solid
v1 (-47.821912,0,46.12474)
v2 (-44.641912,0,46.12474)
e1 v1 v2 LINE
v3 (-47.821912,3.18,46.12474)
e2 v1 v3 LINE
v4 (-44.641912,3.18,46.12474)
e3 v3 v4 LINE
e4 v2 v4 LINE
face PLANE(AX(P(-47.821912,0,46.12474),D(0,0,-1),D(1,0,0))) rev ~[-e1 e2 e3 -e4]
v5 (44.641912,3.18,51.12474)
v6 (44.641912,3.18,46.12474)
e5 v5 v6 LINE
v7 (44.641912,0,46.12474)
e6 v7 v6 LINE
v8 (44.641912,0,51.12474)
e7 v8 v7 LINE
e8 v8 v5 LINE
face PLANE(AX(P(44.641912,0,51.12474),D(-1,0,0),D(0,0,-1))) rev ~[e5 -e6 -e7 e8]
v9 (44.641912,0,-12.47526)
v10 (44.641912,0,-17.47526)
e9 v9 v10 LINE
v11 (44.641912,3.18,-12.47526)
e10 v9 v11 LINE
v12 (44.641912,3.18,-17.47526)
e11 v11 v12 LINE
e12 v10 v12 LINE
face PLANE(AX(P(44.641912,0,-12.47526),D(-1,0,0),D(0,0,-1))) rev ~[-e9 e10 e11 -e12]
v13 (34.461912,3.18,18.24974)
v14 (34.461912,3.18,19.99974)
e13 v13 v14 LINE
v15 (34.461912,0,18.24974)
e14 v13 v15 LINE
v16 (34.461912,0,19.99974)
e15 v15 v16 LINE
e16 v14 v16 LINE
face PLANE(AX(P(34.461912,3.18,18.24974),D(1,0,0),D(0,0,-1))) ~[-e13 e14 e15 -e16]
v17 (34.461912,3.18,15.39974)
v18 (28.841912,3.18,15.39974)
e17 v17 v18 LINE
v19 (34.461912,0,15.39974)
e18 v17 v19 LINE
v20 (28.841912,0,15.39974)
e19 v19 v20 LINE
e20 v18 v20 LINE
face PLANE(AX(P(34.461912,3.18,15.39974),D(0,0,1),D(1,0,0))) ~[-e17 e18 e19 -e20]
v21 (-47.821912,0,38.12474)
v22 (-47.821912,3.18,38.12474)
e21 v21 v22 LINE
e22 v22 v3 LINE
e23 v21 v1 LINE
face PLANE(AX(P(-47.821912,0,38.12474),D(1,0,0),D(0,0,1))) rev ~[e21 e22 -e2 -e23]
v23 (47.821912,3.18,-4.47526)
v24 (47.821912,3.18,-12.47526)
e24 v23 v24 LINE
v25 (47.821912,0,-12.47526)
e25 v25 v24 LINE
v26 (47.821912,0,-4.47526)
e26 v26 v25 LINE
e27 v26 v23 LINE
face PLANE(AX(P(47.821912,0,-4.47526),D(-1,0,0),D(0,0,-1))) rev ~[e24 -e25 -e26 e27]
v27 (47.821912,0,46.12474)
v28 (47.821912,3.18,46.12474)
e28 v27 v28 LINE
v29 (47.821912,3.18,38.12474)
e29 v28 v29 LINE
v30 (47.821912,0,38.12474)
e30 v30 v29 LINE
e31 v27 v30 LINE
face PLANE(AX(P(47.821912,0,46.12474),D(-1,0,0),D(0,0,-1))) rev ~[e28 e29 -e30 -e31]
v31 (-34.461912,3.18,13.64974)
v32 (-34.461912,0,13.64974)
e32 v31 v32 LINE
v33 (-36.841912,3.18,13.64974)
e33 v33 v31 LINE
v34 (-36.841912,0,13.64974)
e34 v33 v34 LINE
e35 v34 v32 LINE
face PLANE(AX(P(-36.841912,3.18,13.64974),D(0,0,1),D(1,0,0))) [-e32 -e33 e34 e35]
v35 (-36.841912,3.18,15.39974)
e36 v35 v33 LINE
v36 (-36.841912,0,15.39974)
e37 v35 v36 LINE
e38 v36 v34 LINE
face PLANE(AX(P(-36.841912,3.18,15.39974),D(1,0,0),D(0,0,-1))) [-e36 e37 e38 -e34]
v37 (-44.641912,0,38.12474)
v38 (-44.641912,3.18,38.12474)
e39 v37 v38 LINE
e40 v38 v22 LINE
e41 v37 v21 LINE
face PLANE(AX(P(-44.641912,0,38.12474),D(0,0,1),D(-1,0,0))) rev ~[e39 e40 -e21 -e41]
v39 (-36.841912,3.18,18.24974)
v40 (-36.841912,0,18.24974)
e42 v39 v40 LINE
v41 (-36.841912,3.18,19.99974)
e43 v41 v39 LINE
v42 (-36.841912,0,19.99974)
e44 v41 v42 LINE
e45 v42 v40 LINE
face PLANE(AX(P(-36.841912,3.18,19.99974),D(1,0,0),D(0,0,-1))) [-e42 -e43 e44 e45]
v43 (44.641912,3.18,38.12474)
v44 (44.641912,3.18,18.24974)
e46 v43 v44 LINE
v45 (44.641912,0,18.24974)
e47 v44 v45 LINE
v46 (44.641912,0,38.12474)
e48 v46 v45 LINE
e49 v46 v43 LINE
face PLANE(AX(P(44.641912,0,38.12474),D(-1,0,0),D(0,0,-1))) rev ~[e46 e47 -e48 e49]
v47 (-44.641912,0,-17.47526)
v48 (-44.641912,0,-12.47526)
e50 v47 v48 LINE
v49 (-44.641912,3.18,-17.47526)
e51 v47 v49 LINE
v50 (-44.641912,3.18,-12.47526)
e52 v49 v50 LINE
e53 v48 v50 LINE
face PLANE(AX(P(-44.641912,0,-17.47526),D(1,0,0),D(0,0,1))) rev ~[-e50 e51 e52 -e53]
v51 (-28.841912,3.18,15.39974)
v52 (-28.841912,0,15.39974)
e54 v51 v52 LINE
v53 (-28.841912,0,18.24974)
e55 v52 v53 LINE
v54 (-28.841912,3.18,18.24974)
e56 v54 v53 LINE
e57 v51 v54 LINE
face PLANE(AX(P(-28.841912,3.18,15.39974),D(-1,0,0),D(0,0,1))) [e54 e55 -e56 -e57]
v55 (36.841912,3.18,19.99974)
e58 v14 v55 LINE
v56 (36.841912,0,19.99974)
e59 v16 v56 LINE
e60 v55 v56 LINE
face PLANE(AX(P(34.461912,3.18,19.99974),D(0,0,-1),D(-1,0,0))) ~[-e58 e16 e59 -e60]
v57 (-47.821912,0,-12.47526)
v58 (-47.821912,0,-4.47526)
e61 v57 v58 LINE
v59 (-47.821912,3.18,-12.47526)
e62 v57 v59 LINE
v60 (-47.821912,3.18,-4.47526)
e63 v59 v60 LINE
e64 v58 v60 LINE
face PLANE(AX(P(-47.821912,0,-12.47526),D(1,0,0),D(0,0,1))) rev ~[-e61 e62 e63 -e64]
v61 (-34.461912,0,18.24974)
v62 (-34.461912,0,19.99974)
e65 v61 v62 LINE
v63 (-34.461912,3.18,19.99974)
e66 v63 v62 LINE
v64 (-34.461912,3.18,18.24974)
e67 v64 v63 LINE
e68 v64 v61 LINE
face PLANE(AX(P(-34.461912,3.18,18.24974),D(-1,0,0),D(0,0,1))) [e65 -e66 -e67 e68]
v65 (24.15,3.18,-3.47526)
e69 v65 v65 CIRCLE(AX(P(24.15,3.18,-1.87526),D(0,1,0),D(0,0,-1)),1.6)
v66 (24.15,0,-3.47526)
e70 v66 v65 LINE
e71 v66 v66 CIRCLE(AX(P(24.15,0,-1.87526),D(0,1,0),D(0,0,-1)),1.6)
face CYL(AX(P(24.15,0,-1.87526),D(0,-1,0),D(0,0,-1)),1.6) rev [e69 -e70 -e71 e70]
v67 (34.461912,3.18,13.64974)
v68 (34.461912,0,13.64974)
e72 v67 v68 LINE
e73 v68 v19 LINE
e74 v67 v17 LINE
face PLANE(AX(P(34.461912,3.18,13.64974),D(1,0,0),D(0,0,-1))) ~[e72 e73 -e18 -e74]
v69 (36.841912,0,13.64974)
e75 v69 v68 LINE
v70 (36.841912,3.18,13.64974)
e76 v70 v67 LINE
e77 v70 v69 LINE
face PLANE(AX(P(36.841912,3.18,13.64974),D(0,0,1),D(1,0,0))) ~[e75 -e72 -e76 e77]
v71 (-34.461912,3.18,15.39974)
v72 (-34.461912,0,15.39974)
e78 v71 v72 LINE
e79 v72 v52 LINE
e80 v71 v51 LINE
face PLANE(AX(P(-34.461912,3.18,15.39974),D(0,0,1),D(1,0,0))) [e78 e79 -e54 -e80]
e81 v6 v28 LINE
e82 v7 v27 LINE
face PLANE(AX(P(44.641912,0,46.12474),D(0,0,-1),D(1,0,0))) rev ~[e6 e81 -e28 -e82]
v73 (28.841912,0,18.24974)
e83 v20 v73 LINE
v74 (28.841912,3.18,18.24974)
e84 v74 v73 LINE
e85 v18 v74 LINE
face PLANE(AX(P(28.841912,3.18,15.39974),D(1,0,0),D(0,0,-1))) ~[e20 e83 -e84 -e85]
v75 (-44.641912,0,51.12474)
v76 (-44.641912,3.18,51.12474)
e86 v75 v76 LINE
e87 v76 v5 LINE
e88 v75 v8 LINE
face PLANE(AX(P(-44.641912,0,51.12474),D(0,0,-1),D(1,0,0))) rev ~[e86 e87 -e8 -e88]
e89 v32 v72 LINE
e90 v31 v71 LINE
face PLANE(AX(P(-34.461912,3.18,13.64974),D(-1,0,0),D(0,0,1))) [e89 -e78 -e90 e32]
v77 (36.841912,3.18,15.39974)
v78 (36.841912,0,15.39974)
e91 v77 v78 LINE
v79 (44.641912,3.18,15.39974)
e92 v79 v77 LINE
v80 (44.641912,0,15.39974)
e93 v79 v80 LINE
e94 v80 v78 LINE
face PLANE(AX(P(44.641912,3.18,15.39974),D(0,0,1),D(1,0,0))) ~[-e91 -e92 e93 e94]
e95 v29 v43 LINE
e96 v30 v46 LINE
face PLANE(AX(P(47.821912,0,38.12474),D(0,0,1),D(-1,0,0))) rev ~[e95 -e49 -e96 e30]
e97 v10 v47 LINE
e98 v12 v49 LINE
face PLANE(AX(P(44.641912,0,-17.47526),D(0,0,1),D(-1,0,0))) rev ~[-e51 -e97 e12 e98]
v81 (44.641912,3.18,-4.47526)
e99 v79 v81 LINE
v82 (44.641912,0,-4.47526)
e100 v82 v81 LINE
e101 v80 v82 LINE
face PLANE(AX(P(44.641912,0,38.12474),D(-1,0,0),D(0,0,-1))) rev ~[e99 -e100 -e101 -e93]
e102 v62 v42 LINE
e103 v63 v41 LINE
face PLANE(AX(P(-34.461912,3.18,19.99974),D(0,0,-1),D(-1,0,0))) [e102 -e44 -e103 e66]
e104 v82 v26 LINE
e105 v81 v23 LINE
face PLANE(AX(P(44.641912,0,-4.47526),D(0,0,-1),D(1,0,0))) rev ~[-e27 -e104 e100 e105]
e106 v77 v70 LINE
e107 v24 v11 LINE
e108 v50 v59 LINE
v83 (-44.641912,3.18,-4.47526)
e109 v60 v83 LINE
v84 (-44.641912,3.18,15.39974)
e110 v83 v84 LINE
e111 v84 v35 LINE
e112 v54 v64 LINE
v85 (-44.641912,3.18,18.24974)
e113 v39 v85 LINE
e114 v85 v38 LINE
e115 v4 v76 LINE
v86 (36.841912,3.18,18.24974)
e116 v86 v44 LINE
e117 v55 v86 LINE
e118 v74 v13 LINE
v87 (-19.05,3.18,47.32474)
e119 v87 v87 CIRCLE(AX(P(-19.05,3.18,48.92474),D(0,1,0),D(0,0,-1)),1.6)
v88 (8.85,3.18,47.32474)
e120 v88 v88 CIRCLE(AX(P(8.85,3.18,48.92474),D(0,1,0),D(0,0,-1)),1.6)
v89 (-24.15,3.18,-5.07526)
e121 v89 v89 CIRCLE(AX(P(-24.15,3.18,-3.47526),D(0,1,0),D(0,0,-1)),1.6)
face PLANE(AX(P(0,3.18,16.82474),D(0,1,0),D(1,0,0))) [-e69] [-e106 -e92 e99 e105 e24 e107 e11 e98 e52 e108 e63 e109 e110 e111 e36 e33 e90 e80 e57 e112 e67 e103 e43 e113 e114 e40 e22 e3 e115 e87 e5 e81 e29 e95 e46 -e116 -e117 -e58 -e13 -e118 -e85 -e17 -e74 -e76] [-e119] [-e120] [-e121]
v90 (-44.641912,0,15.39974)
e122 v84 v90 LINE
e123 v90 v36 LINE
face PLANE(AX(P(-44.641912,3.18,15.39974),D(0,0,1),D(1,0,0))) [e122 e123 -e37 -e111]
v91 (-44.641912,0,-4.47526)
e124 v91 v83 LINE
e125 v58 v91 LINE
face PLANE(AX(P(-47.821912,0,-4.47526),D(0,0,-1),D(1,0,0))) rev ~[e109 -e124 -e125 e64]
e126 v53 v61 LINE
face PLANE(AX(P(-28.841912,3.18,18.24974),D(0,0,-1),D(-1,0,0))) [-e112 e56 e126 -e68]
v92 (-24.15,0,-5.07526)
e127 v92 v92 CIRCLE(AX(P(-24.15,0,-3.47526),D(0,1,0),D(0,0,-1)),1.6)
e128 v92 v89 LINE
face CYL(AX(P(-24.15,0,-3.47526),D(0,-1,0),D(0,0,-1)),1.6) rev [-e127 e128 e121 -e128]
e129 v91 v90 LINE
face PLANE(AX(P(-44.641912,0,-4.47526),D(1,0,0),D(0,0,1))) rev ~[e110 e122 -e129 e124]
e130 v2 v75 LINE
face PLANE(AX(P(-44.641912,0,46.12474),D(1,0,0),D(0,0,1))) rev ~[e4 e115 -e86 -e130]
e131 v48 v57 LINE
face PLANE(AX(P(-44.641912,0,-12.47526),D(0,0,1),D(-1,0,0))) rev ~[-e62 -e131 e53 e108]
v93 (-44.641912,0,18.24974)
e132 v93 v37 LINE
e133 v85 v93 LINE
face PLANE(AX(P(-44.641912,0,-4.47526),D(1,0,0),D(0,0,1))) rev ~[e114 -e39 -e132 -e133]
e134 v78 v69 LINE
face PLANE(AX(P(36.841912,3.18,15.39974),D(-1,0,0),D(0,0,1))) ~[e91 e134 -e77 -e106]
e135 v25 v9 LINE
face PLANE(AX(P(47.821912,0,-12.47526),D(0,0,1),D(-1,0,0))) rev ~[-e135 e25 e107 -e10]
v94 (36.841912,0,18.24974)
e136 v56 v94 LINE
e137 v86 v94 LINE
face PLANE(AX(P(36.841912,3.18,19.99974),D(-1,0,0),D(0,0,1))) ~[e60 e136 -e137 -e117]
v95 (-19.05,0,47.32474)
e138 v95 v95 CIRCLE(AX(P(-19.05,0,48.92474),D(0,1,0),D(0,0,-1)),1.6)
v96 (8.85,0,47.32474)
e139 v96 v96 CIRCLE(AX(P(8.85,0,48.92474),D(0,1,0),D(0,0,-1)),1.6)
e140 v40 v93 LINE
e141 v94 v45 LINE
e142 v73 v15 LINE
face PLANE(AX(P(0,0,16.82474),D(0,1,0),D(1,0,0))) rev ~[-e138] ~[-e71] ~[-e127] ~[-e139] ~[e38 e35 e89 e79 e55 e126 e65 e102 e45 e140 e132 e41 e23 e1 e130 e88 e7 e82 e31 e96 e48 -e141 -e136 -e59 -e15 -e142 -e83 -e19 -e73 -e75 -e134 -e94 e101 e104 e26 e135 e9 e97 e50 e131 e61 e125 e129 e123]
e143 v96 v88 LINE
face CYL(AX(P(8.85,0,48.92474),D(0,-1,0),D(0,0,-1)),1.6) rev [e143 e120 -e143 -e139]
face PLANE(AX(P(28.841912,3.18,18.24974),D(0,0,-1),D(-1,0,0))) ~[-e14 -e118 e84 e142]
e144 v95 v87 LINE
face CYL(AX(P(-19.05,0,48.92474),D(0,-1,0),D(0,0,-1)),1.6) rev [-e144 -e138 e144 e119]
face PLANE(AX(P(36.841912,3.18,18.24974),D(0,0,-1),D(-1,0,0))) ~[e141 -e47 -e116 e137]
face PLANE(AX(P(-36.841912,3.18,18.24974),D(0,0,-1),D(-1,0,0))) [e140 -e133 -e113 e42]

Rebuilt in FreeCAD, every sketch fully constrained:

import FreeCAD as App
import Part
import Sketcher
Q = App.Units.Quantity

doc = App.newDocument("Part")
body = doc.addObject("PartDesign::Body", "Body")

# Sketch on XZ plane
sketch1 = body.newObject("Sketcher::SketchObject", "Sketch")
sketch1.AttachmentSupport = (doc.getObject("XZ_Plane"), [""])
sketch1.MapMode = "FlatFace"
sketch1.addGeometry(Part.LineSegment(App.Vector(44.6, -17.5, 0), App.Vector(-44.6, -17.5, 0)), False)
sketch1.addGeometry(Part.LineSegment(App.Vector(-44.6, -17.5, 0), App.Vector(-44.6, -12.5, 0)), False)
sketch1.addGeometry(Part.LineSegment(App.Vector(-44.6, -12.5, 0), App.Vector(-47.8, -12.5, 0)), False)
sketch1.addGeometry(Part.LineSegment(App.Vector(-47.8, -12.5, 0), App.Vector(-47.8, -4.5, 0)), False)
sketch1.addGeometry(Part.LineSegment(App.Vector(-47.8, -4.5, 0), App.Vector(-44.6, -4.5, 0)), False)
sketch1.addGeometry(Part.LineSegment(App.Vector(-44.6, -4.5, 0), App.Vector(-44.6, 38.1, 0)), False)
sketch1.addGeometry(Part.LineSegment(App.Vector(-44.6, 38.1, 0), App.Vector(-47.8, 38.1, 0)), False)
sketch1.addGeometry(Part.LineSegment(App.Vector(-47.8, 38.1, 0), App.Vector(-47.8, 46.1, 0)), False)
sketch1.addGeometry(Part.LineSegment(App.Vector(-47.8, 46.1, 0), App.Vector(-44.6, 46.1, 0)), False)
sketch1.addGeometry(Part.LineSegment(App.Vector(-44.6, 46.1, 0), App.Vector(-44.6, 51.1, 0)), False)
sketch1.addGeometry(Part.LineSegment(App.Vector(-44.6, 51.1, 0), App.Vector(44.6, 51.1, 0)), False)
sketch1.addGeometry(Part.LineSegment(App.Vector(44.6, 51.1, 0), App.Vector(44.6, 46.1, 0)), False)
sketch1.addGeometry(Part.LineSegment(App.Vector(44.6, 46.1, 0), App.Vector(47.8, 46.1, 0)), False)
sketch1.addGeometry(Part.LineSegment(App.Vector(47.8, 46.1, 0), App.Vector(47.8, 38.1, 0)), False)
sketch1.addGeometry(Part.LineSegment(App.Vector(47.8, 38.1, 0), App.Vector(44.6, 38.1, 0)), False)
sketch1.addGeometry(Part.LineSegment(App.Vector(44.6, 38.1, 0), App.Vector(44.6, -4.5, 0)), False)
sketch1.addGeometry(Part.LineSegment(App.Vector(44.6, -4.5, 0), App.Vector(47.8, -4.5, 0)), False)
sketch1.addGeometry(Part.LineSegment(App.Vector(47.8, -4.5, 0), App.Vector(47.8, -12.5, 0)), False)
sketch1.addGeometry(Part.LineSegment(App.Vector(47.8, -12.5, 0), App.Vector(44.6, -12.5, 0)), False)
sketch1.addGeometry(Part.LineSegment(App.Vector(44.6, -12.5, 0), App.Vector(44.6, -17.5, 0)), False)
sketch1.addGeometry(Part.Circle(App.Vector(-19.1, 48.9, 0), App.Vector(0, 0, 1), 1.6), False)
sketch1.addGeometry(Part.Circle(App.Vector(8.8, 48.9, 0), App.Vector(0, 0, 1), 1.6), False)
sketch1.addGeometry(Part.Circle(App.Vector(-24.1, -3.5, 0), App.Vector(0, 0, 1), 1.6), False)
sketch1.addGeometry(Part.Circle(App.Vector(24.1, -1.9, 0), App.Vector(0, 0, 1), 1.6), False)
sketch1.addConstraint(Sketcher.Constraint("Coincident", 0, 2, 1, 1))
sketch1.addConstraint(Sketcher.Constraint("Coincident", 1, 2, 2, 1))
sketch1.addConstraint(Sketcher.Constraint("Coincident", 2, 2, 3, 1))
sketch1.addConstraint(Sketcher.Constraint("Coincident", 3, 2, 4, 1))
sketch1.addConstraint(Sketcher.Constraint("Coincident", 4, 2, 5, 1))
sketch1.addConstraint(Sketcher.Constraint("Coincident", 5, 2, 6, 1))
sketch1.addConstraint(Sketcher.Constraint("Coincident", 6, 2, 7, 1))
sketch1.addConstraint(Sketcher.Constraint("Coincident", 7, 2, 8, 1))
sketch1.addConstraint(Sketcher.Constraint("Coincident", 8, 2, 9, 1))
sketch1.addConstraint(Sketcher.Constraint("Coincident", 9, 2, 10, 1))
sketch1.addConstraint(Sketcher.Constraint("Coincident", 10, 2, 11, 1))
sketch1.addConstraint(Sketcher.Constraint("Coincident", 11, 2, 12, 1))
sketch1.addConstraint(Sketcher.Constraint("Coincident", 12, 2, 13, 1))
sketch1.addConstraint(Sketcher.Constraint("Coincident", 13, 2, 14, 1))
sketch1.addConstraint(Sketcher.Constraint("Coincident", 14, 2, 15, 1))
sketch1.addConstraint(Sketcher.Constraint("Coincident", 15, 2, 16, 1))
sketch1.addConstraint(Sketcher.Constraint("Coincident", 16, 2, 17, 1))
sketch1.addConstraint(Sketcher.Constraint("Coincident", 17, 2, 18, 1))
sketch1.addConstraint(Sketcher.Constraint("Coincident", 18, 2, 19, 1))
sketch1.addConstraint(Sketcher.Constraint("Coincident", 19, 2, 0, 1))
sketch1.addConstraint(Sketcher.Constraint("Horizontal", 0))
sketch1.addConstraint(Sketcher.Constraint("Vertical", 1))
sketch1.addConstraint(Sketcher.Constraint("Horizontal", 2))
sketch1.addConstraint(Sketcher.Constraint("Vertical", 3))
sketch1.addConstraint(Sketcher.Constraint("Horizontal", 4))
sketch1.addConstraint(Sketcher.Constraint("Vertical", 5))
sketch1.addConstraint(Sketcher.Constraint("Horizontal", 6))
sketch1.addConstraint(Sketcher.Constraint("Vertical", 7))
sketch1.addConstraint(Sketcher.Constraint("Horizontal", 8))
sketch1.addConstraint(Sketcher.Constraint("Vertical", 9))
sketch1.addConstraint(Sketcher.Constraint("Horizontal", 10))
sketch1.addConstraint(Sketcher.Constraint("Vertical", 11))
sketch1.addConstraint(Sketcher.Constraint("Horizontal", 12))
sketch1.addConstraint(Sketcher.Constraint("Vertical", 13))
sketch1.addConstraint(Sketcher.Constraint("Horizontal", 14))
sketch1.addConstraint(Sketcher.Constraint("Vertical", 15))
sketch1.addConstraint(Sketcher.Constraint("Horizontal", 16))
sketch1.addConstraint(Sketcher.Constraint("Vertical", 17))
sketch1.addConstraint(Sketcher.Constraint("Horizontal", 18))
sketch1.addConstraint(Sketcher.Constraint("Vertical", 19))
sketch1.addConstraint(Sketcher.Constraint("Equal", 20, 21))
sketch1.addConstraint(Sketcher.Constraint("Equal", 21, 22))
sketch1.addConstraint(Sketcher.Constraint("Equal", 22, 23))
sketch1.addConstraint(Sketcher.Constraint("Symmetric", 8, 2, 11, 2, -2))
sketch1.addConstraint(Sketcher.Constraint("Symmetric", 6, 2, 13, 2, -2))
sketch1.addConstraint(Sketcher.Constraint("Symmetric", 4, 2, 15, 2, -2))
sketch1.addConstraint(Sketcher.Constraint("Symmetric", 2, 2, 17, 2, -2))
sketch1.addConstraint(Sketcher.Constraint("Horizontal", 20, 3, 21, 3))
sketch1.addConstraint(Sketcher.Constraint("Vertical", 1, 2, 4, 2))
sketch1.addConstraint(Sketcher.Constraint("Vertical", 3, 2, 6, 2))
sketch1.addConstraint(Sketcher.Constraint("Vertical", 5, 2, 8, 2))
sketch1.addConstraint(Sketcher.Constraint("Vertical", 15, 2, 18, 2))
sketch1.addConstraint(Sketcher.Constraint("Equal", 3, 7))
sketch1.addConstraint(Sketcher.Constraint("Equal", 1, 9))
sketch1.addConstraint(Sketcher.Constraint("Diameter", 20, Q("3.2 mm")))
sketch1.addConstraint(Sketcher.Constraint("DistanceY", 1, 1, 1, 2, Q("5 mm")))
sketch1.addConstraint(Sketcher.Constraint("DistanceY", 3, 1, 3, 2, Q("8 mm")))
sketch1.addConstraint(Sketcher.Constraint("DistanceY", 5, 1, 5, 2, Q("42.6 mm")))
sketch1.addConstraint(Sketcher.Constraint("DistanceX", 22, 3, 21, 3, Q("33 mm")))
sketch1.addConstraint(Sketcher.Constraint("DistanceY", 0, 2, 22, 3, Q("14 mm")))
sketch1.addConstraint(Sketcher.Constraint("DistanceY", 23, 3, 10, 2, Q("53 mm")))
sketch1.addConstraint(Sketcher.Constraint("DistanceX", 2, 2, 2, 1, Q("3.18 mm")))
sketch1.addConstraint(Sketcher.Constraint("DistanceX", 20, 3, 21, 3, Q("27.9 mm")))
sketch1.addConstraint(Sketcher.Constraint("DistanceY", 22, 3, 20, 3, Q("52.4 mm")))
sketch1.addConstraint(Sketcher.Constraint("DistanceX", 22, 3, 23, 3, Q("48.3 mm")))
sketch1.addConstraint(Sketcher.Constraint("DistanceX", 20, 3, -1, 1, Q("19.05 mm")))
sketch1.addConstraint(Sketcher.Constraint("DistanceX", 0, 2, 0, 1, Q("89.283825 mm")))
sketch1.addConstraint(Sketcher.Constraint("DistanceY", -1, 1, 20, 3, Q("48.92474 mm")))
pad1 = body.newObject("PartDesign::Pad", "Pad")
pad1.Profile = sketch1
pad1.Length = 3.18
pad1.Reversed = True

# Sketch on XZ plane
sketch2 = body.newObject("Sketcher::SketchObject", "Sketch001")
sketch2.AttachmentSupport = (doc.getObject("XZ_Plane"), [""])
sketch2.MapMode = "FlatFace"
sketch2.AttachmentOffset = App.Placement(App.Vector(0, 0, -3.18), App.Rotation())
sketch2.addGeometry(Part.LineSegment(App.Vector(-36.8, 15.4, 0), App.Vector(-44.6, 15.4, 0)), False)
sketch2.addGeometry(Part.LineSegment(App.Vector(-44.6, 15.4, 0), App.Vector(-44.6, 18.2, 0)), False)
sketch2.addGeometry(Part.LineSegment(App.Vector(-44.6, 18.2, 0), App.Vector(-36.8, 18.2, 0)), False)
sketch2.addGeometry(Part.LineSegment(App.Vector(-36.8, 18.2, 0), App.Vector(-36.8, 20, 0)), False)
sketch2.addGeometry(Part.LineSegment(App.Vector(-36.8, 20, 0), App.Vector(-34.5, 20, 0)), False)
sketch2.addGeometry(Part.LineSegment(App.Vector(-34.5, 20, 0), App.Vector(-34.5, 18.2, 0)), False)
sketch2.addGeometry(Part.LineSegment(App.Vector(-34.5, 18.2, 0), App.Vector(-28.8, 18.2, 0)), False)
sketch2.addGeometry(Part.LineSegment(App.Vector(-28.8, 18.2, 0), App.Vector(-28.8, 15.4, 0)), False)
sketch2.addGeometry(Part.LineSegment(App.Vector(-28.8, 15.4, 0), App.Vector(-34.5, 15.4, 0)), False)
sketch2.addGeometry(Part.LineSegment(App.Vector(-34.5, 15.4, 0), App.Vector(-34.5, 13.6, 0)), False)
sketch2.addGeometry(Part.LineSegment(App.Vector(-34.5, 13.6, 0), App.Vector(-36.8, 13.6, 0)), False)
sketch2.addGeometry(Part.LineSegment(App.Vector(-36.8, 13.6, 0), App.Vector(-36.8, 15.4, 0)), False)
sketch2.addConstraint(Sketcher.Constraint("Coincident", 0, 2, 1, 1))
sketch2.addConstraint(Sketcher.Constraint("Coincident", 1, 2, 2, 1))
sketch2.addConstraint(Sketcher.Constraint("Coincident", 2, 2, 3, 1))
sketch2.addConstraint(Sketcher.Constraint("Coincident", 3, 2, 4, 1))
sketch2.addConstraint(Sketcher.Constraint("Coincident", 4, 2, 5, 1))
sketch2.addConstraint(Sketcher.Constraint("Coincident", 5, 2, 6, 1))
sketch2.addConstraint(Sketcher.Constraint("Coincident", 6, 2, 7, 1))
sketch2.addConstraint(Sketcher.Constraint("Coincident", 7, 2, 8, 1))
sketch2.addConstraint(Sketcher.Constraint("Coincident", 8, 2, 9, 1))
sketch2.addConstraint(Sketcher.Constraint("Coincident", 9, 2, 10, 1))
sketch2.addConstraint(Sketcher.Constraint("Coincident", 10, 2, 11, 1))
sketch2.addConstraint(Sketcher.Constraint("Coincident", 11, 2, 0, 1))
sketch2.addConstraint(Sketcher.Constraint("Horizontal", 0))
sketch2.addConstraint(Sketcher.Constraint("Vertical", 1))
sketch2.addConstraint(Sketcher.Constraint("Horizontal", 2))
sketch2.addConstraint(Sketcher.Constraint("Vertical", 3))
sketch2.addConstraint(Sketcher.Constraint("Horizontal", 4))
sketch2.addConstraint(Sketcher.Constraint("Vertical", 5))
sketch2.addConstraint(Sketcher.Constraint("Horizontal", 6))
sketch2.addConstraint(Sketcher.Constraint("Vertical", 7))
sketch2.addConstraint(Sketcher.Constraint("Horizontal", 8))
sketch2.addConstraint(Sketcher.Constraint("Vertical", 9))
sketch2.addConstraint(Sketcher.Constraint("Horizontal", 10))
sketch2.addConstraint(Sketcher.Constraint("Vertical", 11))
sketch2.addConstraint(Sketcher.Constraint("Horizontal", 2, 2, 5, 2))
sketch2.addConstraint(Sketcher.Constraint("Horizontal", 0, 2, 7, 2))
sketch2.addConstraint(Sketcher.Constraint("Vertical", 5, 2, 8, 2))
sketch2.addConstraint(Sketcher.Constraint("Vertical", 3, 2, 10, 2))
sketch2.addConstraint(Sketcher.Constraint("Equal", 5, 9))
sketch2.addConstraint(Sketcher.Constraint("DistanceX", 0, 2, 0, 1, Q("7.8 mm")))
sketch2.addConstraint(Sketcher.Constraint("DistanceX", 2, 2, 6, 2, Q("8 mm")))
sketch2.addConstraint(Sketcher.Constraint("DistanceX", 4, 1, 4, 2, Q("2.38 mm")))
sketch2.addConstraint(Sketcher.Constraint("DistanceY", 1, 1, 1, 2, Q("2.85 mm")))
sketch2.addConstraint(Sketcher.Constraint("DistanceY", 3, 1, 3, 2, Q("1.75 mm")))
sketch2.addConstraint(Sketcher.Constraint("DistanceY", -1, 1, 0, 2, Q("15.39974 mm")))
sketch2.addConstraint(Sketcher.Constraint("DistanceX", 0, 2, -1, 1, Q("44.641912 mm")))
pocket1 = body.newObject("PartDesign::Pocket", "Pocket")
pocket1.Profile = sketch2
pocket1.Type = "ThroughAll"
pocket1.Reversed = True
doc.recompute()

mirrored = body.newObject("PartDesign::Mirrored", "Mirrored")
mirrored.Originals = [pocket1]
mirrored.MirrorPlane = (doc.getObject("YZ_Plane"), [""])
body.Tip = mirrored

doc.recompute()
